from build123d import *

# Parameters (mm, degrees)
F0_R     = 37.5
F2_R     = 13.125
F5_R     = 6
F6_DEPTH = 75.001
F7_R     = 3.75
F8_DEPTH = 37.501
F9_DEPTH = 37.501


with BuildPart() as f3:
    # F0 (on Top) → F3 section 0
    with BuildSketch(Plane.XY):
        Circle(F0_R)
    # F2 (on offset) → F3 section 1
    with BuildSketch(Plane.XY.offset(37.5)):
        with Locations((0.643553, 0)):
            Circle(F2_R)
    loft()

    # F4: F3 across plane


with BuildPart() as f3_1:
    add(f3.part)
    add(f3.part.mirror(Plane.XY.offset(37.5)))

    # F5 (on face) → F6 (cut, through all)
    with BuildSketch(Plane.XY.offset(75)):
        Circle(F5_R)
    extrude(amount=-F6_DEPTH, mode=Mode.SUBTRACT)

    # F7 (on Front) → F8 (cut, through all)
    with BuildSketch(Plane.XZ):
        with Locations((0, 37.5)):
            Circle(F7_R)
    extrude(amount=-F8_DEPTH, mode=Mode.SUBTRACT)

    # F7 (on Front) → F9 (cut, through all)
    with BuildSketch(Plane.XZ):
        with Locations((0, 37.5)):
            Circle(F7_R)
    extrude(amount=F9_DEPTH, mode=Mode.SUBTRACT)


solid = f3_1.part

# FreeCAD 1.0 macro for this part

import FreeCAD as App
import Part
import Sketcher

V = App.Vector

doc = App.newDocument("Part")
body = doc.addObject("PartDesign::Body", "Body")

sketch1 = body.newObject("Sketcher::SketchObject", "Sketch")
sketch1.AttachmentSupport = (doc.getObject("XY_Plane"), [""])
sketch1.MapMode = "FlatFace"
sketch1.addGeometry(Part.Circle(V(0, 0, 0), V(0, 0, 1), 38), False)
sketch1.addConstraint(Sketcher.Constraint("Coincident", 0, 3, -1, 1))
sketch1.addConstraint(Sketcher.Constraint("Diameter", 0, 75.0))

sketch2 = body.newObject("Sketcher::SketchObject", "Sketch001")
sketch2.AttachmentSupport = (doc.getObject("XY_Plane"), [""])
sketch2.MapMode = "FlatFace"
sketch2.AttachmentOffset = App.Placement(V(0, 0, 37.5), App.Rotation())
sketch2.addGeometry(Part.Circle(V(1, 0, 0), V(0, 0, 1), 13), False)
sketch2.addConstraint(Sketcher.Constraint("PointOnObject", 0, 3, -1))
sketch2.addConstraint(Sketcher.Constraint("Diameter", 0, 26.25))
sketch2.addConstraint(Sketcher.Constraint("DistanceX", -1, 1, 0, 3, 0.643553))

additiveloft = body.newObject("PartDesign::AdditiveLoft", "AdditiveLoft")
additiveloft.Profile = sketch1
additiveloft.Sections = [sketch2]
body2 = doc.addObject("PartDesign::Body", "Body001")
doc.recompute()

body2.BaseFeature = body
doc.recompute()

mirroring = doc.addObject("Part::Mirroring", "Mirroring")
mirroring.Source = body
mirroring.Base = V(0, 0, 37.5)
mirroring.Normal = V(0, 0, 1)
body3 = doc.addObject("PartDesign::Body", "Body002")
body3.BaseFeature = mirroring
boolean = body2.newObject("PartDesign::Boolean", "Boolean")
boolean.Type = "Fuse"
boolean.addObjects([body3])
doc.recompute()

sketch3 = body2.newObject("Sketcher::SketchObject", "Sketch002")
sketch3.AttachmentSupport = (doc.getObject("XY_Plane001"), [""])
sketch3.MapMode = "FlatFace"
sketch3.AttachmentOffset = App.Placement(V(0, 0, 75), App.Rotation())
sketch3.addGeometry(Part.Circle(V(0, 0, 0), V(0, 0, 1), 6), False)
sketch3.addConstraint(Sketcher.Constraint("Coincident", 0, 3, -1, 1))
sketch3.addConstraint(Sketcher.Constraint("Diameter", 0, 12.0))
pocket1 = body2.newObject("PartDesign::Pocket", "Pocket")
pocket1.Profile = sketch3
pocket1.Type = "ThroughAll"

sketch4 = body2.newObject("Sketcher::SketchObject", "Sketch003")
sketch4.AttachmentSupport = (doc.getObject("XZ_Plane001"), [""])
sketch4.MapMode = "FlatFace"
sketch4.addGeometry(Part.Circle(V(0, 37.5, 0), V(0, 0, 1), 3.8), False)
sketch4.addConstraint(Sketcher.Constraint("PointOnObject", 0, 3, -2))
sketch4.addConstraint(Sketcher.Constraint("Diameter", 0, 7.5))
sketch4.addConstraint(Sketcher.Constraint("DistanceY", -1, 1, 0, 3, 37.5))
pocket2 = body2.newObject("PartDesign::Pocket", "Pocket001")
pocket2.Profile = sketch4
pocket2.Type = "ThroughAll"

sketch5 = body2.newObject("Sketcher::SketchObject", "Sketch004")
sketch5.AttachmentSupport = (doc.getObject("XZ_Plane001"), [""])
sketch5.MapMode = "FlatFace"
sketch5.addGeometry(Part.Circle(V(0, 37.5, 0), V(0, 0, 1), 3.8), False)
sketch5.addConstraint(Sketcher.Constraint("PointOnObject", 0, 3, -2))
sketch5.addConstraint(Sketcher.Constraint("Diameter", 0, 7.5))
sketch5.addConstraint(Sketcher.Constraint("DistanceY", -1, 1, 0, 3, 37.5))
pocket3 = body2.newObject("PartDesign::Pocket", "Pocket002")
pocket3.Profile = sketch5
pocket3.Type = "ThroughAll"
pocket3.Reversed = True
mirroring.Visibility = False

doc.recompute()
